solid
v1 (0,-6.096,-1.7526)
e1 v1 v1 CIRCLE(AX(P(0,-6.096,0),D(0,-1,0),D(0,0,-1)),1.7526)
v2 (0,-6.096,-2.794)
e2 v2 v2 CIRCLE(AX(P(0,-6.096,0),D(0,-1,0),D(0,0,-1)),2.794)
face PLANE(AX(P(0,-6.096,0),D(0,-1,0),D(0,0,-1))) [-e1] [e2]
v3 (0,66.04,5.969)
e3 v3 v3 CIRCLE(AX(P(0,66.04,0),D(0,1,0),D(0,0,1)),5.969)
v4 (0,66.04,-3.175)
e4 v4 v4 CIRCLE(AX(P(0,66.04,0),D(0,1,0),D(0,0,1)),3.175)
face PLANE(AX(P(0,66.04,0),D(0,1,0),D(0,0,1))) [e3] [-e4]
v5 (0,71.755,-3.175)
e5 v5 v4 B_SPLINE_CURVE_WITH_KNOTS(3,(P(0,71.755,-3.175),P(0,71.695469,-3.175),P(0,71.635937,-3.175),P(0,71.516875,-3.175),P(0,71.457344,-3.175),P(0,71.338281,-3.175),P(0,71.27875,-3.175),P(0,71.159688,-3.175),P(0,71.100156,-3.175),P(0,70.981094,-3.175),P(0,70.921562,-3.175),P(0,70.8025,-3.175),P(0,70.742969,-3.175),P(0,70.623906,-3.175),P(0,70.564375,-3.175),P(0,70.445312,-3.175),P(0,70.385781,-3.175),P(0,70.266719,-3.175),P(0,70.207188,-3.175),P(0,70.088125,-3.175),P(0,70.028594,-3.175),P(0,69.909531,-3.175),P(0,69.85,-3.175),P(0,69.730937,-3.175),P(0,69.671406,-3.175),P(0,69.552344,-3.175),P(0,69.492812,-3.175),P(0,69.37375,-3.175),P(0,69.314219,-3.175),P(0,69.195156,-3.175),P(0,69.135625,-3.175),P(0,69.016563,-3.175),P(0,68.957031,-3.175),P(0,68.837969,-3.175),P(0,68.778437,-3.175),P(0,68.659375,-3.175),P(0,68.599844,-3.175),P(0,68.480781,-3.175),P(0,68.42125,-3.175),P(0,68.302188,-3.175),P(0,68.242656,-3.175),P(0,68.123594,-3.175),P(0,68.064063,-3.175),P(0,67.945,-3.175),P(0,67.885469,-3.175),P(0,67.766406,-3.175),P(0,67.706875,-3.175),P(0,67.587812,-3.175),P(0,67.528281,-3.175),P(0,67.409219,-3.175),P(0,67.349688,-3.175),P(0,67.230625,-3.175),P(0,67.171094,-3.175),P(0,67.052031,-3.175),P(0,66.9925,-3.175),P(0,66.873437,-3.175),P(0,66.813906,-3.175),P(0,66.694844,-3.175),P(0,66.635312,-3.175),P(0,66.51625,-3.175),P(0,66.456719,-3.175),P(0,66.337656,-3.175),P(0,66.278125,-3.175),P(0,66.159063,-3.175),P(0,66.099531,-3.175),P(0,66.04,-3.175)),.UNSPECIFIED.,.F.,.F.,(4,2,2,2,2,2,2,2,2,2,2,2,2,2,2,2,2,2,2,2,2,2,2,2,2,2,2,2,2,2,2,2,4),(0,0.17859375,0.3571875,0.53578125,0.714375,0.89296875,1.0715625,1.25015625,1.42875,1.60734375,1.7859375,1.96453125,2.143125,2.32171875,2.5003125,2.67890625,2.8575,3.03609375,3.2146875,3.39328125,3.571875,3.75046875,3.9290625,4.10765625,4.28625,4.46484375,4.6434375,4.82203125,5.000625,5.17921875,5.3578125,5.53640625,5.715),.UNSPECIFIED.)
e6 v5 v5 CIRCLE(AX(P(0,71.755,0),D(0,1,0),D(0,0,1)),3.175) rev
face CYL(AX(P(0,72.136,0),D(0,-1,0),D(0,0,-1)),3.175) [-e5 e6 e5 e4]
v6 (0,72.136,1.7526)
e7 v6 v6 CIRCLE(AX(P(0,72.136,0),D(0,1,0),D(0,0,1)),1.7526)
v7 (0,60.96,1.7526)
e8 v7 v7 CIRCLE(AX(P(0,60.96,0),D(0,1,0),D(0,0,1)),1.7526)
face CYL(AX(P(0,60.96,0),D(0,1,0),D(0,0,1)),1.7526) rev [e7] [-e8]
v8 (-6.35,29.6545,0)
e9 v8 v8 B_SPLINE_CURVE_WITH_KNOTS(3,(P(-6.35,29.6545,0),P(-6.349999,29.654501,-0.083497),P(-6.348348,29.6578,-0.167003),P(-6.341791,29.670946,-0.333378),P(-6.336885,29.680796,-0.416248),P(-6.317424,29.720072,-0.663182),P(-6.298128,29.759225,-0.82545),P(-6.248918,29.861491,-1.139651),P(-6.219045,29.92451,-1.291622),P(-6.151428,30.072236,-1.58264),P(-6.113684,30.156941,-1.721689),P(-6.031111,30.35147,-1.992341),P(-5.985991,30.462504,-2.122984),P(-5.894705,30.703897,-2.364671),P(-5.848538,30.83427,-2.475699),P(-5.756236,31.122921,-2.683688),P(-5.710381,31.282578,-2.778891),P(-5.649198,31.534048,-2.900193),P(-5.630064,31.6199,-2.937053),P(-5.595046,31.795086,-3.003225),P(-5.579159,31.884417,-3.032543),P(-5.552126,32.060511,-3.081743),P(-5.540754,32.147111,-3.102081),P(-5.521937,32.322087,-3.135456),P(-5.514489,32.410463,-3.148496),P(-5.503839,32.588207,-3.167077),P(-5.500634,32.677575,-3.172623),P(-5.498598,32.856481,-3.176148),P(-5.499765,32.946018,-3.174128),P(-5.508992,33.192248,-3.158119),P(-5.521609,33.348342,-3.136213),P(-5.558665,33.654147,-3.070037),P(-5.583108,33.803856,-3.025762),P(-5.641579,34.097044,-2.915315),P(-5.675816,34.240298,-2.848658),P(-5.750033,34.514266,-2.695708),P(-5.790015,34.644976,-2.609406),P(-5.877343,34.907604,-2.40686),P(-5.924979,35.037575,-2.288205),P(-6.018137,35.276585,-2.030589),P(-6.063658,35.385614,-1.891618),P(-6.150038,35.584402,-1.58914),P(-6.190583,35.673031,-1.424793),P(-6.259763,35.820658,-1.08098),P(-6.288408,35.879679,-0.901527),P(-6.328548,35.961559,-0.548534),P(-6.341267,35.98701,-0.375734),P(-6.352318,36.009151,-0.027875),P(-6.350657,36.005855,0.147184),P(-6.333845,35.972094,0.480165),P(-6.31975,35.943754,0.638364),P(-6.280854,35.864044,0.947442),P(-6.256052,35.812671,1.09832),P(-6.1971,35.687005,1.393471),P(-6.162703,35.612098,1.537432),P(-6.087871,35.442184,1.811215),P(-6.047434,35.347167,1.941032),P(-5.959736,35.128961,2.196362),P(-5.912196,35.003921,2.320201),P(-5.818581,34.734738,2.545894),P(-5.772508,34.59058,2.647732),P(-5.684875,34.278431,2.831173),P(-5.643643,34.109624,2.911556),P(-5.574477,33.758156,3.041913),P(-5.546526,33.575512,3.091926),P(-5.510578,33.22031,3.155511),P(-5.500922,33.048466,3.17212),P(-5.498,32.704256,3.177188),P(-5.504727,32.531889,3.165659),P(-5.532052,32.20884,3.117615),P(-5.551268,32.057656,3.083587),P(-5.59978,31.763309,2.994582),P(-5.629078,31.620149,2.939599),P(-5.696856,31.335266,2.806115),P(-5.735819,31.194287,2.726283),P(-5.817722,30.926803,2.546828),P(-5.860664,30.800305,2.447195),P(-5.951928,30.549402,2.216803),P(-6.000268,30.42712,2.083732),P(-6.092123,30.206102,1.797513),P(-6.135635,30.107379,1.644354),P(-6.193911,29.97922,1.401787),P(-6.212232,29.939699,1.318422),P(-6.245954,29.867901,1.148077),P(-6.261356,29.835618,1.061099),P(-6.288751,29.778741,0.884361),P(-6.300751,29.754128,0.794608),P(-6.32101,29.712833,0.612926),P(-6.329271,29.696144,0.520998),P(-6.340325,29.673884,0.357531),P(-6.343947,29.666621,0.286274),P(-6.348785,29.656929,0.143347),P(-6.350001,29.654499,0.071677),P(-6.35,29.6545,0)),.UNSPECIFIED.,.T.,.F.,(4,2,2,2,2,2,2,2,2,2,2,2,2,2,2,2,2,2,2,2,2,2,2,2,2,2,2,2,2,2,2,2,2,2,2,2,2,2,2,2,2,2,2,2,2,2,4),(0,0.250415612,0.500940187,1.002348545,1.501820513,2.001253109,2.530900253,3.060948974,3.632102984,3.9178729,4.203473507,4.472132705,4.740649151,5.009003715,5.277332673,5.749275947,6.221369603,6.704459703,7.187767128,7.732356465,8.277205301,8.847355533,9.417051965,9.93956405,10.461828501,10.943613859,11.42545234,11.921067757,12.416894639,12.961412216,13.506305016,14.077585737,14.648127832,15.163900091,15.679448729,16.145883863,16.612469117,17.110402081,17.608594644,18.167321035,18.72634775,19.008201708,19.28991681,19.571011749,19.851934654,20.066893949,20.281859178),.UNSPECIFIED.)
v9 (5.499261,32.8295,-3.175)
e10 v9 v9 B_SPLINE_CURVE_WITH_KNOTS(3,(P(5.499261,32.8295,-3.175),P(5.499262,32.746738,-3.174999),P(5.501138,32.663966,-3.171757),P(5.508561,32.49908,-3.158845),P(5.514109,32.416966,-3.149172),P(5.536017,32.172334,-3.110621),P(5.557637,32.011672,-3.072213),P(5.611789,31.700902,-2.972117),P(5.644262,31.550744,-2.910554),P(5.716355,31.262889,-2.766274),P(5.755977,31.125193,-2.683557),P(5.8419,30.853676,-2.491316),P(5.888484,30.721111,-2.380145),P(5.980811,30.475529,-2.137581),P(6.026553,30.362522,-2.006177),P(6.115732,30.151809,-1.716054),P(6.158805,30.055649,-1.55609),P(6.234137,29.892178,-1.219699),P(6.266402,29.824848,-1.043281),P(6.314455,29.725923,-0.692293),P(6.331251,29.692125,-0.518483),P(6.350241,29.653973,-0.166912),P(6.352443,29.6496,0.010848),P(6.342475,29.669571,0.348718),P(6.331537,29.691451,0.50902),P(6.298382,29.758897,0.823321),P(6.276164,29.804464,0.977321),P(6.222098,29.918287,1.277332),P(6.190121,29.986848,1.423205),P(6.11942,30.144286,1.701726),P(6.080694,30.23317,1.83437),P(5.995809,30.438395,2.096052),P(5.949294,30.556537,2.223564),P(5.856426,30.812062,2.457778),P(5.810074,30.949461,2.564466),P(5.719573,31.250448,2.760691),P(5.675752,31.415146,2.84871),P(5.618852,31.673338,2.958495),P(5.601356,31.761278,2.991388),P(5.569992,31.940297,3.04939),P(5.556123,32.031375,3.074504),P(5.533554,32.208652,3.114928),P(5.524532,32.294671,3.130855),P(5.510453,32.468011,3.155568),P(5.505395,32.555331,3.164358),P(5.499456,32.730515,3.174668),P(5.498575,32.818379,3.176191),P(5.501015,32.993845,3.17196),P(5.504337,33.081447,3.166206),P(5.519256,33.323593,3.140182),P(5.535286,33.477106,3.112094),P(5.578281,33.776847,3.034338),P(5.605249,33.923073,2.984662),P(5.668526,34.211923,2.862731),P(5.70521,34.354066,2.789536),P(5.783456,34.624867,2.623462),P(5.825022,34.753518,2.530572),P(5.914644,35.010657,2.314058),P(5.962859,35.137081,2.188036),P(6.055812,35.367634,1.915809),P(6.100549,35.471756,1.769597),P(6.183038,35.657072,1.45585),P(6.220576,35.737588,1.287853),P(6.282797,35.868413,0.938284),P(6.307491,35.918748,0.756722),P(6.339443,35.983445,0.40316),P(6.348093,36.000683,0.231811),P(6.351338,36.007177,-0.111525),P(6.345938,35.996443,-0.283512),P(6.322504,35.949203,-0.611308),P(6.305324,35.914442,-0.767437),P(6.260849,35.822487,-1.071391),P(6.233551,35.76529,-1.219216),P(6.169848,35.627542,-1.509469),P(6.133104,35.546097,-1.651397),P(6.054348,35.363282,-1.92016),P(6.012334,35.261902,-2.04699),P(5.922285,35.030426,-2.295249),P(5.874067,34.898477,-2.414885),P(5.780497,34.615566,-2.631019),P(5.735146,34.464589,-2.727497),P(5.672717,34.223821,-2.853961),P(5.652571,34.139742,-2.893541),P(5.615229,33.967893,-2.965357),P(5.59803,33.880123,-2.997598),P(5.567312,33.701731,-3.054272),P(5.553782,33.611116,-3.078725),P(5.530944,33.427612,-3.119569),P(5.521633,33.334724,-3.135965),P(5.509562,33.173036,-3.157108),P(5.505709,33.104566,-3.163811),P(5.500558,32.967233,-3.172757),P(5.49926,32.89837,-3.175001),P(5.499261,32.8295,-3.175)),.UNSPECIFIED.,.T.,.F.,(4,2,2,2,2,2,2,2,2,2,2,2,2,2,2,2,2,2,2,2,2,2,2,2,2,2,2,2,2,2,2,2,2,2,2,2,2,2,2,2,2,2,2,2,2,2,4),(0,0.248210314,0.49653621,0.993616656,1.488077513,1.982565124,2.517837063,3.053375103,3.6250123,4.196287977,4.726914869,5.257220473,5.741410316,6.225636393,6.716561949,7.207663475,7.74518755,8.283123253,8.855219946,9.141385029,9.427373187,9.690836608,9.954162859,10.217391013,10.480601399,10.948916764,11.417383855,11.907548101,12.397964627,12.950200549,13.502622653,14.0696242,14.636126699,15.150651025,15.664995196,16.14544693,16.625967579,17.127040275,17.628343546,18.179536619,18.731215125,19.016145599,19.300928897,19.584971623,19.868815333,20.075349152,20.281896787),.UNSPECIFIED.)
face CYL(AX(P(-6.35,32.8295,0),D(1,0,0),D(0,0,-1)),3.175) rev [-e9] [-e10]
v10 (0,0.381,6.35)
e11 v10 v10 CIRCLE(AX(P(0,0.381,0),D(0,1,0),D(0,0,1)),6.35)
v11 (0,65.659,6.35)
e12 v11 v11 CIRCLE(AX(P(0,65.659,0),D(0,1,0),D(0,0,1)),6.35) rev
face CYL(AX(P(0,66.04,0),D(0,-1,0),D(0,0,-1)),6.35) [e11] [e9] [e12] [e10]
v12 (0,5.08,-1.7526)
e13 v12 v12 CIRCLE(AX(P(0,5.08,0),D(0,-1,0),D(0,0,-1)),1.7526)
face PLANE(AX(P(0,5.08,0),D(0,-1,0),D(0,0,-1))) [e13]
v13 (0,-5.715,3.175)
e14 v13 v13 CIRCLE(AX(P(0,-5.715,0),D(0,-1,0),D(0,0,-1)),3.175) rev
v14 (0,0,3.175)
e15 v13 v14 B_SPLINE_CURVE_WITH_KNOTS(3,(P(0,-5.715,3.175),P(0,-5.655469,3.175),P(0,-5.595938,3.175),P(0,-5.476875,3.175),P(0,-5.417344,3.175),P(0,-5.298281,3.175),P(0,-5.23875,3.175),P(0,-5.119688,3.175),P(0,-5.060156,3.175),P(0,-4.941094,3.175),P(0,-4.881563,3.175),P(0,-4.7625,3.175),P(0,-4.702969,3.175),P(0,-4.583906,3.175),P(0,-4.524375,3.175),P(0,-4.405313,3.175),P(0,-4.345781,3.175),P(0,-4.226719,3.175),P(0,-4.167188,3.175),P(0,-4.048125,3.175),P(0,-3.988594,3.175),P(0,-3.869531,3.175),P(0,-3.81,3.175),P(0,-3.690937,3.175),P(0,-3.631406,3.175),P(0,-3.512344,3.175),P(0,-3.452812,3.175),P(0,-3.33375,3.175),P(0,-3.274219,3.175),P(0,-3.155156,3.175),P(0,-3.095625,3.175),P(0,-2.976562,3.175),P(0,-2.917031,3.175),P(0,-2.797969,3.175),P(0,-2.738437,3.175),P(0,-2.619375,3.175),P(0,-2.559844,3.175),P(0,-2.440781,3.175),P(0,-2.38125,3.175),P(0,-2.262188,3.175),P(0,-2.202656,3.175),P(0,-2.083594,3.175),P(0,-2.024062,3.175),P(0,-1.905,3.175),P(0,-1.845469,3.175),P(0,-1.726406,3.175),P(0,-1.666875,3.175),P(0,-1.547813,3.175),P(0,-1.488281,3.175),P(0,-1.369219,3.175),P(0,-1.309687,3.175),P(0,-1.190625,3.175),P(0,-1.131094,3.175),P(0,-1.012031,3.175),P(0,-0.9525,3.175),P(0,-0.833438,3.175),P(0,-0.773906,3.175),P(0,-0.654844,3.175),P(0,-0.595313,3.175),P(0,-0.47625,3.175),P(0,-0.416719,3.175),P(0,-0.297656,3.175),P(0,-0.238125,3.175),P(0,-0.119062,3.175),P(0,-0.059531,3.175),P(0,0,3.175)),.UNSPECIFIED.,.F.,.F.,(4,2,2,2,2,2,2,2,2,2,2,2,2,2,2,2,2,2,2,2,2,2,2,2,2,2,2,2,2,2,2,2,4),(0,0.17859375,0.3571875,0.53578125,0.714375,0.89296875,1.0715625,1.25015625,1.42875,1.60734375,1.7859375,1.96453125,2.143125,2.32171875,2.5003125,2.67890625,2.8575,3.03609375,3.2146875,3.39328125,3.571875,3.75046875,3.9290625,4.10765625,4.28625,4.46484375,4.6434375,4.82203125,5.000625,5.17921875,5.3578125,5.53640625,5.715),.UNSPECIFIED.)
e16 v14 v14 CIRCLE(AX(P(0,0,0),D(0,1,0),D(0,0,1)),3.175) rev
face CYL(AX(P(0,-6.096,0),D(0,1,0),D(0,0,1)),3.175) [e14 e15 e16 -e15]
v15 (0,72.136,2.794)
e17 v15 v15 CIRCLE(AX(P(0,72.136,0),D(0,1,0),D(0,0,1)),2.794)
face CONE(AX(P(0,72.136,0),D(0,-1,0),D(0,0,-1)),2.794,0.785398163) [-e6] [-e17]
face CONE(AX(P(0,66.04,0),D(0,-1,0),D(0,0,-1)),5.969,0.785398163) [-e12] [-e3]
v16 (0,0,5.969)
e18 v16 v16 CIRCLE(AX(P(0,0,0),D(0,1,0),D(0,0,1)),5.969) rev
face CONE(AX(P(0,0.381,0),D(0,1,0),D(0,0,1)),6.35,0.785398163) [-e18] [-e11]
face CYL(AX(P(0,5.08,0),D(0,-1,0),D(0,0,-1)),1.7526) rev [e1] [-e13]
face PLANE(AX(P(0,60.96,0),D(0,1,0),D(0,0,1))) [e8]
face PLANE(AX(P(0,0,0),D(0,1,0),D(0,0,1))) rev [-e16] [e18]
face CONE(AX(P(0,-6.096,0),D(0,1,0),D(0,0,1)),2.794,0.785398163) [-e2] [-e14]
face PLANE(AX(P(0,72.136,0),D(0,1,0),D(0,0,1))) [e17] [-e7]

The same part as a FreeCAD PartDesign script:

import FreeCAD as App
import Part
import Sketcher
from FreeCAD import Vector
Q = App.Units.Quantity


def edges_at(feature, points):
    """Names of the edges that pass closest to the given points."""
    edges = feature.Shape.Edges
    near = lambda p: min(range(len(edges)), key=lambda i: edges[i].distToShape(Part.Vertex(*p))[0])
    return sorted({f"Edge{near(p) + 1}" for p in points})

doc = App.newDocument("Part")
body = doc.addObject("PartDesign::Body", "Body")

# Sketch on XZ plane
sketch1 = doc.addObject("Sketcher::SketchObject", "Sketch")
body.addObject(sketch1)
sketch1.AttachmentSupport = (doc.XZ_Plane, [""])
sketch1.MapMode = "FlatFace"
sketch1.addGeometry(Part.Circle(Vector(0, 0, 0), Vector(0, 0, 1), 6), False)
sketch1.addConstraint(Sketcher.Constraint("Coincident", 0, 3, -1, 1))
sketch1.addConstraint(Sketcher.Constraint("Diameter", 0, Q("0.5 in")))
pad1 = doc.addObject("PartDesign::Pad", "Pad")
body.addObject(pad1)
pad1.Profile = sketch1
pad1.Length = Q("2.6 in")
pad1.Reversed = True

# Sketch on XZ plane
sketch2 = doc.addObject("Sketcher::SketchObject", "Sketch001")
body.addObject(sketch2)
sketch2.AttachmentSupport = (doc.XZ_Plane, [""])
sketch2.MapMode = "FlatFace"
sketch2.addGeometry(Part.Circle(Vector(0, 0, 0), Vector(0, 0, 1), 3.2), False)
sketch2.addConstraint(Sketcher.Constraint("Coincident", 0, 3, -1, 1))
sketch2.addConstraint(Sketcher.Constraint("Diameter", 0, Q("0.25 in")))
pad2 = doc.addObject("PartDesign::Pad", "Pad001")
body.addObject(pad2)
pad2.Profile = sketch2
pad2.Length = Q("0.24 in")

# Sketch on XZ plane
sketch3 = doc.addObject("Sketcher::SketchObject", "Sketch002")
body.addObject(sketch3)
sketch3.AttachmentSupport = (doc.XZ_Plane, [""])
sketch3.MapMode = "FlatFace"
sketch3.AttachmentOffset = App.Placement(Vector(0, 0, -2.84 * 25.4), App.Rotation())
sketch3.addGeometry(Part.Circle(Vector(0, 0, 0), Vector(0, 0, 1), 3.2), False)
sketch3.addConstraint(Sketcher.Constraint("Coincident", 0, 3, -1, 1))
sketch3.addConstraint(Sketcher.Constraint("Diameter", 0, Q("0.25 in")))
pad3 = doc.addObject("PartDesign::Pad", "Pad002")
body.addObject(pad3)
pad3.Profile = sketch3
pad3.Length = Q("0.24 in")

# Sketch on XZ plane
sketch4 = doc.addObject("Sketcher::SketchObject", "Sketch003")
body.addObject(sketch4)
sketch4.AttachmentSupport = (doc.XZ_Plane, [""])
sketch4.MapMode = "FlatFace"
sketch4.AttachmentOffset = App.Placement(Vector(0, 0, -2.84 * 25.4), App.Rotation())
sketch4.addGeometry(Part.Circle(Vector(0, 0, 0), Vector(0, 0, 1), 1.8), False)
sketch4.addConstraint(Sketcher.Constraint("Coincident", 0, 3, -1, 1))
sketch4.addConstraint(Sketcher.Constraint("Diameter", 0, Q("0.138 in")))
pocket1 = doc.addObject("PartDesign::Pocket", "Pocket")
body.addObject(pocket1)
pocket1.Profile = sketch4
pocket1.Length = Q("0.44 in")
pocket1.Reversed = True

# Sketch on XZ plane
sketch5 = doc.addObject("Sketcher::SketchObject", "Sketch004")
body.addObject(sketch5)
sketch5.AttachmentSupport = (doc.XZ_Plane, [""])
sketch5.MapMode = "FlatFace"
sketch5.AttachmentOffset = App.Placement(Vector(0, 0, -0.2 * 25.4), App.Rotation())
sketch5.addGeometry(Part.Circle(Vector(0, 0, 0), Vector(0, 0, 1), 1.8), False)
sketch5.addConstraint(Sketcher.Constraint("Coincident", 0, 3, -1, 1))
sketch5.addConstraint(Sketcher.Constraint("Diameter", 0, Q("0.138 in")))
pocket2 = doc.addObject("PartDesign::Pocket", "Pocket001")
body.addObject(pocket2)
pocket2.Profile = sketch5
pocket2.Length = Q("0.44 in")
pocket2.Reversed = True
doc.recompute()

chamfer = doc.addObject("PartDesign::Chamfer", "Chamfer")
body.addObject(chamfer)
chamfer.Base = (pocket2, edges_at(pocket2, [
    (0, 72.136, -3.175),
    (0, 0, -6.35),
    (0, 66.04, -6.35),
    (0, -6.096, -3.175),
]))
chamfer.Size = Q("0.015 in")

# Sketch on YZ plane
sketch6 = doc.addObject("Sketcher::SketchObject", "Sketch005")
body.addObject(sketch6)
sketch6.AttachmentSupport = (doc.YZ_Plane, [""])
sketch6.MapMode = "FlatFace"
sketch6.addGeometry(Part.Circle(Vector(32.8, 0, 0), Vector(0, 0, 1), 3.2), False)
sketch6.addConstraint(Sketcher.Constraint("PointOnObject", 0, 3, -1))
sketch6.addConstraint(Sketcher.Constraint("Diameter", 0, Q("0.25 in")))
sketch6.addConstraint(Sketcher.Constraint("DistanceX", -1, 1, 0, 3, Q("1.2925 in")))
pocket3 = doc.addObject("PartDesign::Pocket", "Pocket002")
body.addObject(pocket3)
pocket3.Profile = sketch6
pocket3.Type = "ThroughAll"
pocket3.Midplane = True

doc.recompute()
